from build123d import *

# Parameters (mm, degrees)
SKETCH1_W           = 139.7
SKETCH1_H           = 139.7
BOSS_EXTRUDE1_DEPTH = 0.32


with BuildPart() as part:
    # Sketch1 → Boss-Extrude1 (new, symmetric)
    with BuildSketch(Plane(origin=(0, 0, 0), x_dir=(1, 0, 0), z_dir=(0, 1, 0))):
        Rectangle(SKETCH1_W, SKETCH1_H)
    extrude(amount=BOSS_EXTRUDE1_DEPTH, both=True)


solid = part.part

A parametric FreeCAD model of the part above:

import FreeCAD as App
import Part
import Sketcher

V = App.Vector
Q = App.Units.Quantity

doc = App.newDocument("Part")
body = doc.addObject("PartDesign::Body", "Body")

sketch1 = doc.addObject("Sketcher::SketchObject", "Sketch")
body.addObject(sketch1)
sketch1.AttachmentSupport = (doc.XZ_Plane, [""])
sketch1.MapMode = "FlatFace"
sketch1.addGeometry([
    Part.LineSegment(V(-69.85, -69.85, 0), V(-69.85, 69.85, 0)),
    Part.LineSegment(V(-69.85, 69.85, 0), V(69.85, 69.85, 0)),
    Part.LineSegment(V(69.85, 69.85, 0), V(69.85, -69.85, 0)),
    Part.LineSegment(V(69.85, -69.85, 0), V(-69.85, -69.85, 0)),
], False)
sketch1.addConstraint([
    Sketcher.Constraint("Coincident", 0, 2, 1, 1),
    Sketcher.Constraint("Coincident", 1, 2, 2, 1),
    Sketcher.Constraint("Coincident", 2, 2, 3, 1),
    Sketcher.Constraint("Coincident", 3, 2, 0, 1),
    Sketcher.Constraint("Vertical", 0),
    Sketcher.Constraint("Horizontal", 1),
    Sketcher.Constraint("Vertical", 2),
    Sketcher.Constraint("Horizontal", 3),
    Sketcher.Constraint("Symmetric", 0, 2, 2, 2, -1, 1),
    Sketcher.Constraint("Equal", 3, 0),
    Sketcher.Constraint("DistanceX", 1, 1, 1, 2, Q("5.5 in")),
])
pad1 = doc.addObject("PartDesign::Pad", "Pad")
body.addObject(pad1)
pad1.Profile = sketch1
pad1.Length = 0.64
pad1.Midplane = True

doc.recompute()
